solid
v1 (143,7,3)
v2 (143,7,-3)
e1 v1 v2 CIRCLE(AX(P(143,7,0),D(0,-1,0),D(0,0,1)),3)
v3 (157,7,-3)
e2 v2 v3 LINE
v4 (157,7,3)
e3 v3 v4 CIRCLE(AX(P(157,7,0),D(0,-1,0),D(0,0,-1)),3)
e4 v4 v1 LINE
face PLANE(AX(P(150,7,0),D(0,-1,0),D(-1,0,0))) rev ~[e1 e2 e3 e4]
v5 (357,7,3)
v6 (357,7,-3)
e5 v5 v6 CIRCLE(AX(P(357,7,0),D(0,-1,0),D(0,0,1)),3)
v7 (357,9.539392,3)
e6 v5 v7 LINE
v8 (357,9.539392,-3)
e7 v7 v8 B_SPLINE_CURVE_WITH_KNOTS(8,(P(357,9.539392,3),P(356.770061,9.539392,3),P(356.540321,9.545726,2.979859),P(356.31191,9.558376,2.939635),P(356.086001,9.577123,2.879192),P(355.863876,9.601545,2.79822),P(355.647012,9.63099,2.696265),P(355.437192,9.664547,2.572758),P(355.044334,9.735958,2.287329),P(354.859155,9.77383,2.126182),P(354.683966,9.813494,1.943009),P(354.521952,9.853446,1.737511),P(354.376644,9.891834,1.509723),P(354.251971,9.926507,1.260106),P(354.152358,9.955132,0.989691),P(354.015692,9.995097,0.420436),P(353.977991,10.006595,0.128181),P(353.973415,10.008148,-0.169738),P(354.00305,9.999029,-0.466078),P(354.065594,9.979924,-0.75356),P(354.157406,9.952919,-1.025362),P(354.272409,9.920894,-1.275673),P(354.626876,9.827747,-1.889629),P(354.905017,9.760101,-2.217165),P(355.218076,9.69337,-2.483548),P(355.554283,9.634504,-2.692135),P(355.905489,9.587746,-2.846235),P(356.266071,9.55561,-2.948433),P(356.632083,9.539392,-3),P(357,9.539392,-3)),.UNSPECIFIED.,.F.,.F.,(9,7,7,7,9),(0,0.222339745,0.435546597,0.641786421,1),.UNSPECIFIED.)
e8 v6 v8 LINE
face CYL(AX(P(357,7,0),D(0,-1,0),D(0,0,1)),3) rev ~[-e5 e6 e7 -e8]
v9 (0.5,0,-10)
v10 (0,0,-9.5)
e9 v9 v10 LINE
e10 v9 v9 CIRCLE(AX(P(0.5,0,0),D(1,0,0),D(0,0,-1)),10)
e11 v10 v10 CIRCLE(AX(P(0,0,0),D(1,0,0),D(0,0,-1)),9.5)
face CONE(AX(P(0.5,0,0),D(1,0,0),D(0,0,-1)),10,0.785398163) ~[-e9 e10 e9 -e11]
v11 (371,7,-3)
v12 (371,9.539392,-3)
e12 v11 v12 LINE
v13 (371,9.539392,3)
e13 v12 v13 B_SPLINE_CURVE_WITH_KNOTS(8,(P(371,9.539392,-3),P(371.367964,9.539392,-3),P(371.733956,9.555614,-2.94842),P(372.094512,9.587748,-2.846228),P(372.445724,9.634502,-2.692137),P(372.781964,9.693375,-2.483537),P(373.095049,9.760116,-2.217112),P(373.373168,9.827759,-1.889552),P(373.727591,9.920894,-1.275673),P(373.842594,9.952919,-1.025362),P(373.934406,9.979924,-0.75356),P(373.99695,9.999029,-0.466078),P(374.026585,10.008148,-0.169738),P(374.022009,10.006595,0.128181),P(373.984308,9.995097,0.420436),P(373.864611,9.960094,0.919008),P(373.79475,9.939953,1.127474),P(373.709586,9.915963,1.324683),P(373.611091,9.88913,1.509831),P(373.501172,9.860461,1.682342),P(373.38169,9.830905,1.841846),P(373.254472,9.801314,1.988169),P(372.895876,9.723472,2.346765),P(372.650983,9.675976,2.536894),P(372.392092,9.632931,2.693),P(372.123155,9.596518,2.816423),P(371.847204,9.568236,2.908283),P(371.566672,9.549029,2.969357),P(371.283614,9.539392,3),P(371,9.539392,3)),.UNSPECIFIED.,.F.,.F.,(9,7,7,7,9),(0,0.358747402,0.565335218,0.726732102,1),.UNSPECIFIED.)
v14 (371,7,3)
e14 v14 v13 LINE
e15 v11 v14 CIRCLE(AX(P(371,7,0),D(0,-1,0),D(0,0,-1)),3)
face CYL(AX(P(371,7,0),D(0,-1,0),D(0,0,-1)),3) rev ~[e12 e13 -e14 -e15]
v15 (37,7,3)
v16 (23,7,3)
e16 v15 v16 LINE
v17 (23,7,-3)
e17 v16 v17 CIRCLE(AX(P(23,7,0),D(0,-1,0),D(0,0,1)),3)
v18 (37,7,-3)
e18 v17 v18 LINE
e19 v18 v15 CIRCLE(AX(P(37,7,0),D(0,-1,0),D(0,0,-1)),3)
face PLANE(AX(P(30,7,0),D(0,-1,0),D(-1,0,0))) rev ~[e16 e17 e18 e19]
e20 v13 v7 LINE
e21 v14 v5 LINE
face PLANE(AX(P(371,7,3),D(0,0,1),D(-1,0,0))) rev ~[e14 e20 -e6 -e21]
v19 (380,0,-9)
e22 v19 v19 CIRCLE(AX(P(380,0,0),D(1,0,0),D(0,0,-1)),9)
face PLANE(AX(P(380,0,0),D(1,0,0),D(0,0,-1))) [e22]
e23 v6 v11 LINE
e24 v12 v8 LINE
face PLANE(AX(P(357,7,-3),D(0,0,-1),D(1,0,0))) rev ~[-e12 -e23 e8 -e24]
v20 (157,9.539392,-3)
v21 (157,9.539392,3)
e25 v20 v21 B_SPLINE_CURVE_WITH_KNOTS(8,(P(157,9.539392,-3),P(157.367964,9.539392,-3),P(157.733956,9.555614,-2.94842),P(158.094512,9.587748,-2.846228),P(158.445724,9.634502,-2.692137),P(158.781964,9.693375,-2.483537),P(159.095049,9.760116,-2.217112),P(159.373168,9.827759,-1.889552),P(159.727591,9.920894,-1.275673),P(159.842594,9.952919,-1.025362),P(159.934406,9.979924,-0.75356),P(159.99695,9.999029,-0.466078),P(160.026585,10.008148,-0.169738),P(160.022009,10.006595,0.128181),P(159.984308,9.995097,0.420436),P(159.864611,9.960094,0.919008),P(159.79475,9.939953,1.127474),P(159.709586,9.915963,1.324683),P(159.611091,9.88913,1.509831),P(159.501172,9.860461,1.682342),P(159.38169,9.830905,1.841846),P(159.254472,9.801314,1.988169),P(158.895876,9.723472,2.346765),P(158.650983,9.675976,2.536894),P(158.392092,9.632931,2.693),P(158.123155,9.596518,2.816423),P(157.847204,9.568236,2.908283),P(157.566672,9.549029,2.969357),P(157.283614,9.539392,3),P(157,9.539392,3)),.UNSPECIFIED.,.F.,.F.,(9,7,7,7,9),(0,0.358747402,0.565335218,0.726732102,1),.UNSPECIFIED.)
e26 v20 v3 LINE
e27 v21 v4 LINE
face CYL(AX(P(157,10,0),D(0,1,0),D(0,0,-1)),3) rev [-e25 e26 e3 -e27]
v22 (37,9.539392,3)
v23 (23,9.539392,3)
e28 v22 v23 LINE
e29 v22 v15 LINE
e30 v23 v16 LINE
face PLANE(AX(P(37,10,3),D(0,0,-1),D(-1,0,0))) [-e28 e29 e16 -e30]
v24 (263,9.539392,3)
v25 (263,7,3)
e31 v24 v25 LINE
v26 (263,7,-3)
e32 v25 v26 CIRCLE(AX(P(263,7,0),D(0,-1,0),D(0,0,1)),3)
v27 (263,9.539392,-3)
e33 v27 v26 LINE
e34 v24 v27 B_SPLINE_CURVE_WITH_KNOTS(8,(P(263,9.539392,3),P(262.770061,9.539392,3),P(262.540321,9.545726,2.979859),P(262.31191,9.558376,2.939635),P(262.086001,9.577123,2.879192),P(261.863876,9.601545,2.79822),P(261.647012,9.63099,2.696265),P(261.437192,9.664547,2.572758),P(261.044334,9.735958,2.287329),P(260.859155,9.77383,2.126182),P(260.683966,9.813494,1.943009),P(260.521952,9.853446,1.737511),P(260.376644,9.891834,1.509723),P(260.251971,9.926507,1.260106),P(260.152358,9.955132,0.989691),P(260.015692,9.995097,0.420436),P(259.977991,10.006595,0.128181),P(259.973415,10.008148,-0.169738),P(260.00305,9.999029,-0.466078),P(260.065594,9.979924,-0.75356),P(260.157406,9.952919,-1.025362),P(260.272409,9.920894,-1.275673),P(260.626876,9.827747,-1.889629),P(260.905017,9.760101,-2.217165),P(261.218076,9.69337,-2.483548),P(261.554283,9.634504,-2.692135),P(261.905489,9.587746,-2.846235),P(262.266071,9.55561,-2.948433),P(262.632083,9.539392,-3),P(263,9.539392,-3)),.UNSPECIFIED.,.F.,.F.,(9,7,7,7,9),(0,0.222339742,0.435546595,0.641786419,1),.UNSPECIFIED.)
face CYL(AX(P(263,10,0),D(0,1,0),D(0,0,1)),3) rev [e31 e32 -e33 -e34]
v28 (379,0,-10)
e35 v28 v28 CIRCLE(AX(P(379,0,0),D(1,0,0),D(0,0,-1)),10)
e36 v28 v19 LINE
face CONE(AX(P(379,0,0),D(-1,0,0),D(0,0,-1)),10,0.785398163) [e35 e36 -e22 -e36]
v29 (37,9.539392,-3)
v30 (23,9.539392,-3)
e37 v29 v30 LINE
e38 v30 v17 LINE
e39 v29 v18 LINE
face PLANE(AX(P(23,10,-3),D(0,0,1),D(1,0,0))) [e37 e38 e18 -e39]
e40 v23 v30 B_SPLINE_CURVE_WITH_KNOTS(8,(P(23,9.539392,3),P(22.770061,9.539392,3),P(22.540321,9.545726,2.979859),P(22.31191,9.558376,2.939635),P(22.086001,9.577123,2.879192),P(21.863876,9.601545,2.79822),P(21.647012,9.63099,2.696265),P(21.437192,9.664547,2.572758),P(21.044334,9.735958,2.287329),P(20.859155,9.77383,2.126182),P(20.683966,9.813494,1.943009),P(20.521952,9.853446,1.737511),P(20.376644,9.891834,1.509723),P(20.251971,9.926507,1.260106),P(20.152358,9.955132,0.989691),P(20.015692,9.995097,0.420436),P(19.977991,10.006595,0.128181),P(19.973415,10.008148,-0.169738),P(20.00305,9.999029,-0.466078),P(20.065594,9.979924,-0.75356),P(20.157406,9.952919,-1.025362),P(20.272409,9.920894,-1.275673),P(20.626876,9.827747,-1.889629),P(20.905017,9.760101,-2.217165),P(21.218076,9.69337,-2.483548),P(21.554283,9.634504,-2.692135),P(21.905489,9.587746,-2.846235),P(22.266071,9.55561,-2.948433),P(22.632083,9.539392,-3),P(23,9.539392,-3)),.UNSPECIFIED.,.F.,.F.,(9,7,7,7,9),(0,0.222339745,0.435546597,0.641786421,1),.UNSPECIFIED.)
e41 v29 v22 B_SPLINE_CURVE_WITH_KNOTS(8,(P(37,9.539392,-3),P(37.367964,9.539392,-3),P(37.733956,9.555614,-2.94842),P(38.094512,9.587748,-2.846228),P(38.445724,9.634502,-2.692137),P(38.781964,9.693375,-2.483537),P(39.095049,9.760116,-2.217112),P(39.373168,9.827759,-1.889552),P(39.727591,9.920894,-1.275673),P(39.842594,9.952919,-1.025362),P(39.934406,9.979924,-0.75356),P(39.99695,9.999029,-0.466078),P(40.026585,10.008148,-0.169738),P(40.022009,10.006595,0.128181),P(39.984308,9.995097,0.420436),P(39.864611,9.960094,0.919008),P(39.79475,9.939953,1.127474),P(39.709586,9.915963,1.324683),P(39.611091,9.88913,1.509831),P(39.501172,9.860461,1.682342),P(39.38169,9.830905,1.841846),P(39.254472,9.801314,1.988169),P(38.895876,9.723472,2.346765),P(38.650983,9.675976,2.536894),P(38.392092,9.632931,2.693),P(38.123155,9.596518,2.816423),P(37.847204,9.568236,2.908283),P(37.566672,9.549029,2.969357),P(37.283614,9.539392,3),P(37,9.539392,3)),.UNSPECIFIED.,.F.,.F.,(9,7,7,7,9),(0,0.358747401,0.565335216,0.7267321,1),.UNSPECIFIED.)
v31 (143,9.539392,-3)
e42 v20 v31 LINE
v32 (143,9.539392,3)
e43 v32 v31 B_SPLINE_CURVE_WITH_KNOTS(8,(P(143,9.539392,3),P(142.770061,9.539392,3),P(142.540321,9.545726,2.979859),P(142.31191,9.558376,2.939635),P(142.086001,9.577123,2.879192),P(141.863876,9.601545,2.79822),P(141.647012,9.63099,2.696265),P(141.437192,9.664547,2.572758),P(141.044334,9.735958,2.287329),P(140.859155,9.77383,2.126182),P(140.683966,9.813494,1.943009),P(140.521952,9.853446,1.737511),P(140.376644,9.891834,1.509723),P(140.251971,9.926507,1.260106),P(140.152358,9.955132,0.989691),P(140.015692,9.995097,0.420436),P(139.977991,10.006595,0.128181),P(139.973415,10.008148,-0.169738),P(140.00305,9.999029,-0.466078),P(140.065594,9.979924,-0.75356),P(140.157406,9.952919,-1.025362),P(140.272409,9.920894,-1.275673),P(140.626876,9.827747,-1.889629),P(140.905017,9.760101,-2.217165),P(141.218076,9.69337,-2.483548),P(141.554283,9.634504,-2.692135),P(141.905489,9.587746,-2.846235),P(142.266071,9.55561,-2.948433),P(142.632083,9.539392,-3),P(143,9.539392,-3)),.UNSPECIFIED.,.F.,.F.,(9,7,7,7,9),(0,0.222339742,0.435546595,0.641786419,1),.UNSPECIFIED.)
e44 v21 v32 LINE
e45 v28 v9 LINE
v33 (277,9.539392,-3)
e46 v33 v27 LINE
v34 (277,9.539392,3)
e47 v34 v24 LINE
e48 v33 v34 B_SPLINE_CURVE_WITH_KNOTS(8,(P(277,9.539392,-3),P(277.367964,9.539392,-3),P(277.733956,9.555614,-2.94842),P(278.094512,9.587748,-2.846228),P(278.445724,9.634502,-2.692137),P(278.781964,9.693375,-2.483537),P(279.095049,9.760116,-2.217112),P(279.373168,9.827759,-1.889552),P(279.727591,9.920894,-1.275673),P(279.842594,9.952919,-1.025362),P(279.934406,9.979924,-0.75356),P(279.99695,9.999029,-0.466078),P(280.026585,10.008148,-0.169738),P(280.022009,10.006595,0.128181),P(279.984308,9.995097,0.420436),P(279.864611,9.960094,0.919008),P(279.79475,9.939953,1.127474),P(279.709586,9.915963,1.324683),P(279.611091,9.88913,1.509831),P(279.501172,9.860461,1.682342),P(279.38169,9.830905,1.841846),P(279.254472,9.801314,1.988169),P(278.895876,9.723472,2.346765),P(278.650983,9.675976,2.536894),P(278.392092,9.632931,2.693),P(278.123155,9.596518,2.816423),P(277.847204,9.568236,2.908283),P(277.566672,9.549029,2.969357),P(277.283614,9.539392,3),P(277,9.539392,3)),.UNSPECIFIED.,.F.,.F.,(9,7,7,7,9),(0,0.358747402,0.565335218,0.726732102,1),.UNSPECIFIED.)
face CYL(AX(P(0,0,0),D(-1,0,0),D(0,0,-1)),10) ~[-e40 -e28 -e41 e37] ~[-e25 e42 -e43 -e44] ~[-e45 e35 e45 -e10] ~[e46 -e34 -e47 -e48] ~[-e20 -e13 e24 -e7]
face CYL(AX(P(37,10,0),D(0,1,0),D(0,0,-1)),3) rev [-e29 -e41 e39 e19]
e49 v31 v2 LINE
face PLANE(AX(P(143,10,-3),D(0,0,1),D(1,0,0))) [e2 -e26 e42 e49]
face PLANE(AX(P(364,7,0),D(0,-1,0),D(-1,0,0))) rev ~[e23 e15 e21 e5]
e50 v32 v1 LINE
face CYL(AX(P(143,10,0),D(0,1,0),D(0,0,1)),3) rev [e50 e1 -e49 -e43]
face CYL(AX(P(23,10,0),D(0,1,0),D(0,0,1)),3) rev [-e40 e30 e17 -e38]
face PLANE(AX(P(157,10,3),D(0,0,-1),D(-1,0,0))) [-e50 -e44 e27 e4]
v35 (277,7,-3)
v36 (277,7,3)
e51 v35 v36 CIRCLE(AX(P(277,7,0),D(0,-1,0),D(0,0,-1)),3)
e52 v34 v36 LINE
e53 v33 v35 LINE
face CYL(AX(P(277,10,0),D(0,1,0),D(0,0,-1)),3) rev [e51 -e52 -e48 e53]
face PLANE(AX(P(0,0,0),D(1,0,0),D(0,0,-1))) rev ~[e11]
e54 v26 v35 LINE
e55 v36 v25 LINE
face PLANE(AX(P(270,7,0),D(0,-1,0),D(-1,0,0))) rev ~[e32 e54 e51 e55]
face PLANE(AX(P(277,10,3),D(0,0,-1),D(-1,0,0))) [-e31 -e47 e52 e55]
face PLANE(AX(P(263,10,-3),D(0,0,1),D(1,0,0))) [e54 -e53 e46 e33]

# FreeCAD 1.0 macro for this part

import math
import FreeCAD as App
import Part
import Sketcher
from FreeCAD import Vector


def edges_at(feature, points):
    """Names of the edges that pass closest to the given points."""
    edges = feature.Shape.Edges
    near = lambda p: min(range(len(edges)), key=lambda i: edges[i].distToShape(Part.Vertex(*p))[0])
    return sorted({f"Edge{near(p) + 1}" for p in points})

doc = App.newDocument("Part")
params = doc.addObject("Spreadsheet::Sheet", "Params")
for row, (alias, value) in enumerate([
    ("sketch1_diameter", "20 mm"),
    ("pad1_length", "300 mm"),
    ("sketch2_radius", "3 mm"),
    ("sketch2_width", "14 mm"),
    ("pocket1_length", "3 mm"),
    ("chamfer_size", "0.5 mm"),
    ("chamfer2_size", "0.5 mm"),
    ("linearpattern_pitch", "120 mm"),
    ("sketch3_diameter", "20 mm"),
    ("pad2_length", "110 mm"),
    ("chamfer3_size", "1 mm"),
    ("sketch4_radius", "3 mm"),
    ("sketch4_width", "14 mm"),
    ("pocket2_length", "60 mm"),
    ("sketch5_diameter", "20 mm"),
    ("pocket3_length", "20 mm"),
    ("chamfer4_size", "1 mm"),
], start=1):
    params.set(f"A{row}", alias)
    params.set(f"B{row}", "=" + value)
    params.setAlias(f"B{row}", alias)

body = doc.addObject("PartDesign::Body", "Body")

sketch1 = body.newObject("Sketcher::SketchObject", "Sketch")
sketch1.AttachmentSupport = (doc.getObject("YZ_Plane"), [""])
sketch1.MapMode = "FlatFace"
sketch1.addGeometry(Part.Circle(Vector(0, 0, 0), Vector(0, 0, 1), 10), False)
sketch1.addConstraint(Sketcher.Constraint("Coincident", 0, 3, -1, 1))
sketch1.addConstraint(Sketcher.Constraint("Diameter", 0, 20.0))
sketch1.setExpression("Constraints[1]", "Params.sketch1_diameter")
pad1 = body.newObject("PartDesign::Pad", "Pad")
pad1.Profile = sketch1
pad1.setExpression("Length", "Params.pad1_length")

sketch2 = body.newObject("Sketcher::SketchObject", "Sketch001")
sketch2.AttachmentSupport = (doc.getObject("XZ_Plane"), [""])
sketch2.MapMode = "FlatFace"
sketch2.AttachmentOffset = App.Placement(Vector(0, 0, -10), App.Rotation())
sketch2.addGeometry(Part.LineSegment(Vector(277, -3, 0), Vector(263, -3, 0)), False)
sketch2.addGeometry(Part.ArcOfCircle(Part.Circle(Vector(263, 0, 0), Vector(0, 0, 1), 3), math.radians(90), math.radians(270)), False)
sketch2.addGeometry(Part.LineSegment(Vector(263, 3, 0), Vector(277, 3, 0)), False)
sketch2.addGeometry(Part.ArcOfCircle(Part.Circle(Vector(277, 0, 0), Vector(0, 0, 1), 3), math.radians(-90), math.radians(90)), False)
sketch2.addConstraint(Sketcher.Constraint("Tangent", 0, 2, 1, 2))
sketch2.addConstraint(Sketcher.Constraint("Tangent", 1, 1, 2, 1))
sketch2.addConstraint(Sketcher.Constraint("Tangent", 2, 2, 3, 2))
sketch2.addConstraint(Sketcher.Constraint("Tangent", 3, 1, 0, 1))
sketch2.addConstraint(Sketcher.Constraint("Horizontal", 0))
sketch2.addConstraint(Sketcher.Constraint("Horizontal", 2))
sketch2.addConstraint(Sketcher.Constraint("PointOnObject", 1, 3, -1))
sketch2.addConstraint(Sketcher.Constraint("Radius", 1, 3.0))
sketch2.addConstraint(Sketcher.Constraint("DistanceX", 0, 2, 0, 1, 14.0))
sketch2.addConstraint(Sketcher.Constraint("DistanceX", -1, 1, 1, 3, 263.0))
sketch2.setExpression("Constraints[7]", "Params.sketch2_radius")
sketch2.setExpression("Constraints[8]", "Params.sketch2_width")
pocket1 = body.newObject("PartDesign::Pocket", "Pocket")
pocket1.Profile = sketch2
pocket1.setExpression("Length", "Params.pocket1_length")
pocket1.Reversed = True
doc.recompute()

chamfer = body.newObject("PartDesign::Chamfer", "Chamfer")
chamfer.Base = (pocket1, edges_at(pocket1, [(0, 0, 10)]))
chamfer.setExpression("Size", "Params.chamfer_size")
doc.recompute()

chamfer2 = body.newObject("PartDesign::Chamfer", "Chamfer001")
chamfer2.Base = (chamfer, edges_at(chamfer, [(300, 0, 10)]))
chamfer2.setExpression("Size", "Params.chamfer2_size")
doc.recompute()

linearpattern = body.newObject("PartDesign::LinearPattern", "LinearPattern")
linearpattern.Originals = [pocket1]
linearpattern.Direction = (doc.getObject("X_Axis"), [""])
linearpattern.Mode = "offset"
linearpattern.setExpression("Offset", "Params.linearpattern_pitch")
linearpattern.Occurrences = 3
linearpattern.Reversed = True
body.Tip = linearpattern

sketch3 = body.newObject("Sketcher::SketchObject", "Sketch002")
sketch3.AttachmentSupport = (doc.getObject("YZ_Plane"), [""])
sketch3.MapMode = "FlatFace"
sketch3.AttachmentOffset = App.Placement(Vector(0, 0, 290), App.Rotation())
sketch3.addGeometry(Part.Circle(Vector(0, 0, 0), Vector(0, 0, 1), 10), False)
sketch3.addConstraint(Sketcher.Constraint("Coincident", 0, 3, -1, 1))
sketch3.addConstraint(Sketcher.Constraint("Diameter", 0, 20.0))
sketch3.setExpression("Constraints[1]", "Params.sketch3_diameter")
pad2 = body.newObject("PartDesign::Pad", "Pad001")
pad2.Profile = sketch3
pad2.setExpression("Length", "Params.pad2_length")
doc.recompute()

chamfer3 = body.newObject("PartDesign::Chamfer", "Chamfer002")
chamfer3.Base = (pad2, edges_at(pad2, [(400, 0, 10)]))
chamfer3.setExpression("Size", "Params.chamfer3_size")

sketch4 = body.newObject("Sketcher::SketchObject", "Sketch003")
sketch4.AttachmentSupport = (doc.getObject("XZ_Plane"), [""])
sketch4.MapMode = "FlatFace"
sketch4.AttachmentOffset = App.Placement(Vector(0, 0, -7), App.Rotation())
sketch4.addGeometry(Part.LineSegment(Vector(371, -3, 0), Vector(357, -3, 0)), False)
sketch4.addGeometry(Part.ArcOfCircle(Part.Circle(Vector(357, 0, 0), Vector(0, 0, 1), 3), math.radians(90), math.radians(270)), False)
sketch4.addGeometry(Part.LineSegment(Vector(357, 3, 0), Vector(371, 3, 0)), False)
sketch4.addGeometry(Part.ArcOfCircle(Part.Circle(Vector(371, 0, 0), Vector(0, 0, 1), 3), math.radians(-90), math.radians(90)), False)
sketch4.addConstraint(Sketcher.Constraint("Tangent", 0, 2, 1, 2))
sketch4.addConstraint(Sketcher.Constraint("Tangent", 1, 1, 2, 1))
sketch4.addConstraint(Sketcher.Constraint("Tangent", 2, 2, 3, 2))
sketch4.addConstraint(Sketcher.Constraint("Tangent", 3, 1, 0, 1))
sketch4.addConstraint(Sketcher.Constraint("Horizontal", 0))
sketch4.addConstraint(Sketcher.Constraint("Horizontal", 2))
sketch4.addConstraint(Sketcher.Constraint("PointOnObject", 1, 3, -1))
sketch4.addConstraint(Sketcher.Constraint("Radius", 1, 3.0))
sketch4.addConstraint(Sketcher.Constraint("DistanceX", 0, 2, 0, 1, 14.0))
sketch4.addConstraint(Sketcher.Constraint("DistanceX", -1, 1, 1, 3, 357.0))
sketch4.setExpression("Constraints[7]", "Params.sketch4_radius")
sketch4.setExpression("Constraints[8]", "Params.sketch4_width")
pocket2 = body.newObject("PartDesign::Pocket", "Pocket001")
pocket2.Profile = sketch4
pocket2.setExpression("Length", "Params.pocket2_length")

sketch5 = body.newObject("Sketcher::SketchObject", "Sketch004")
sketch5.AttachmentSupport = (doc.getObject("YZ_Plane"), [""])
sketch5.MapMode = "FlatFace"
sketch5.AttachmentOffset = App.Placement(Vector(0, 0, 380), App.Rotation())
sketch5.addGeometry(Part.Circle(Vector(0, 0, 0), Vector(0, 0, 1), 10), False)
sketch5.addConstraint(Sketcher.Constraint("Coincident", 0, 3, -1, 1))
sketch5.addConstraint(Sketcher.Constraint("Diameter", 0, 20.0))
sketch5.setExpression("Constraints[1]", "Params.sketch5_diameter")
pocket3 = body.newObject("PartDesign::Pocket", "Pocket002")
pocket3.Profile = sketch5
pocket3.setExpression("Length", "Params.pocket3_length")
pocket3.Reversed = True
doc.recompute()

chamfer4 = body.newObject("PartDesign::Chamfer", "Chamfer003")
chamfer4.Base = (pocket3, edges_at(pocket3, [(380, 0, 10)]))
chamfer4.setExpression("Size", "Params.chamfer4_size")

doc.recompute()
